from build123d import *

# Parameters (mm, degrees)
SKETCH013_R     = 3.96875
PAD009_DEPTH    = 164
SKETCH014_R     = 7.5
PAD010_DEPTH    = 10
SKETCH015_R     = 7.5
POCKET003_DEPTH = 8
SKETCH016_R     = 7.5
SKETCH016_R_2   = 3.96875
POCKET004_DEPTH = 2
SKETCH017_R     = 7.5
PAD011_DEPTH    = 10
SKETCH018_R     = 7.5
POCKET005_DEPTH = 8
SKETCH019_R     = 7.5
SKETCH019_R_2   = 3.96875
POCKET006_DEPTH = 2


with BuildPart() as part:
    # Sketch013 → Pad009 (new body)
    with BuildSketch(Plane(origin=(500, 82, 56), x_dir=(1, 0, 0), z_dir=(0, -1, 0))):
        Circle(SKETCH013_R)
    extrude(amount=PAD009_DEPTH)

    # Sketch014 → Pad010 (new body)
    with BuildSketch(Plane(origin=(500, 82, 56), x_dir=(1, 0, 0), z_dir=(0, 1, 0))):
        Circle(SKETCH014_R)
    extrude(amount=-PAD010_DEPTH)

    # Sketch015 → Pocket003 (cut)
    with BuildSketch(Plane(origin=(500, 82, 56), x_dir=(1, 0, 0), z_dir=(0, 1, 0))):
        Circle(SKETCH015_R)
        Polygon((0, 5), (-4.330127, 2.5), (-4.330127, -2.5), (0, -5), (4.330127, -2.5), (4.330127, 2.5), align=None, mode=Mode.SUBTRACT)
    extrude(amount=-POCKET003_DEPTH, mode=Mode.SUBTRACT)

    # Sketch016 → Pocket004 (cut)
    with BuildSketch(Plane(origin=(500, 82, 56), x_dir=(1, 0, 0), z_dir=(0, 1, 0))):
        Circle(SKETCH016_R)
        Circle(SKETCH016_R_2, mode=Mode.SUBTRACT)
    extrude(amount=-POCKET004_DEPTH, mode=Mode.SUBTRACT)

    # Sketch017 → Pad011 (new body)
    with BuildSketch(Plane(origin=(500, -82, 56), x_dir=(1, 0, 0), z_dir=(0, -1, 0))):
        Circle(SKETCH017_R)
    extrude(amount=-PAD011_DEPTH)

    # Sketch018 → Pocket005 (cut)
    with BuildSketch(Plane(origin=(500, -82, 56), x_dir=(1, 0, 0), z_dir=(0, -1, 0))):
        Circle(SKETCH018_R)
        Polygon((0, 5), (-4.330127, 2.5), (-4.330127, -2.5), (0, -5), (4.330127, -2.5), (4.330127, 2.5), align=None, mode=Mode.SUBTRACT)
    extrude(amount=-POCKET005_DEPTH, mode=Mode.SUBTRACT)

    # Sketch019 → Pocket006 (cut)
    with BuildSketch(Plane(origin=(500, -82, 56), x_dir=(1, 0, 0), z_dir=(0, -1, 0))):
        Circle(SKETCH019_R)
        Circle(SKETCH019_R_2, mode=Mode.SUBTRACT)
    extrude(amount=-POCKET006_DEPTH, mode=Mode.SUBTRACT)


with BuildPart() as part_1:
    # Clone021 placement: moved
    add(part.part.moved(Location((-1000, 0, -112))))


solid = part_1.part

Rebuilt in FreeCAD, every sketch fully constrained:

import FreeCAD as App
import Part
import Sketcher

V = App.Vector
Q = App.Units.Quantity


def add_polygon(sketch, points):
    """Adds a closed chain of lines whose ends are joined by coincident constraints."""
    first, n = sketch.GeometryCount, len(points)
    for a, b in zip(points, points[1:] + points[:1]):
        sketch.addGeometry(Part.LineSegment(App.Vector(*a, 0), App.Vector(*b, 0)), False)
    for i in range(n):
        sketch.addConstraint(Sketcher.Constraint("Coincident", first + i, 2, first + (i + 1) % n, 1))

doc = App.newDocument("Part")
params = doc.addObject("Spreadsheet::Sheet", "Params")
for row, (alias, value) in enumerate([
    ("pad1_length", "164 mm"),
    ("sketch2_diameter", "15 mm"),
    ("pad2_length", "10 mm"),
    ("sketch3_diameter", "15 mm"),
    ("sketch3_height", "5 mm"),
    ("sketch3_length", "5 mm"),
    ("pocket1_length", "8 mm"),
    ("sketch4_diameter", "15 mm"),
    ("pocket2_length", "2 mm"),
    ("sketch5_diameter", "15 mm"),
    ("pad3_length", "10 mm"),
    ("sketch6_diameter", "15 mm"),
    ("sketch6_height", "5 mm"),
    ("sketch6_length", "5 mm"),
    ("pocket3_length", "8 mm"),
    ("sketch7_diameter", "15 mm"),
    ("pocket4_length", "2 mm"),
], start=1):
    params.set(f"A{row}", alias)
    params.set(f"B{row}", "=" + value)
    params.setAlias(f"B{row}", alias)

body = doc.addObject("PartDesign::Body", "Body")

# Sketch on XZ plane
sketch1 = body.newObject("Sketcher::SketchObject", "Sketch")
sketch1.AttachmentSupport = (doc.getObject("XZ_Plane"), [""])
sketch1.MapMode = "FlatFace"
sketch1.AttachmentOffset = App.Placement(V(0, 0, -82), App.Rotation())
sketch1.addGeometry(Part.Circle(V(500, 56, 0), V(0, 0, 1), 4), False)
sketch1.addConstraint(Sketcher.Constraint("DistanceX", -1, 1, 0, 3, 500.0))
sketch1.addConstraint(Sketcher.Constraint("DistanceY", -1, 1, 0, 3, 56.0))
sketch1.addConstraint(Sketcher.Constraint("Diameter", 0, 7.9375))
pad1 = body.newObject("PartDesign::Pad", "Pad")
pad1.Profile = sketch1
pad1.setExpression("Length", "Params.pad1_length")

# Sketch on XZ plane
sketch2 = body.newObject("Sketcher::SketchObject", "Sketch001")
sketch2.AttachmentSupport = (doc.getObject("XZ_Plane"), [""])
sketch2.MapMode = "FlatFace"
sketch2.AttachmentOffset = App.Placement(V(0, 0, -82), App.Rotation())
sketch2.addGeometry(Part.Circle(V(500, 56, 0), V(0, 0, 1), 8), False)
sketch2.addConstraint(Sketcher.Constraint("Diameter", 0, 15.0))
sketch2.addConstraint(Sketcher.Constraint("DistanceX", -1, 1, 0, 3, 500.0))
sketch2.addConstraint(Sketcher.Constraint("DistanceY", -1, 1, 0, 3, 56.0))
sketch2.setExpression("Constraints[0]", "Params.sketch2_diameter")
pad2 = body.newObject("PartDesign::Pad", "Pad001")
pad2.Profile = sketch2
pad2.setExpression("Length", "Params.pad2_length")

# Sketch on XZ plane
sketch3 = body.newObject("Sketcher::SketchObject", "Sketch002")
sketch3.AttachmentSupport = (doc.getObject("XZ_Plane"), [""])
sketch3.MapMode = "FlatFace"
sketch3.AttachmentOffset = App.Placement(V(0, 0, -82), App.Rotation())
sketch3.addGeometry(Part.Circle(V(500, 56, 0), V(0, 0, 1), 7.5), False)  # 0
add_polygon(sketch3, [(495.7, 53.5), (500, 51), (504.3, 53.5), (504.3, 58.5), (500, 61), (495.7, 58.5)])  # lines 1-6
sketch3.addConstraint(Sketcher.Constraint("Vertical", 3))
sketch3.addConstraint(Sketcher.Constraint("Vertical", 6))
sketch3.addConstraint(Sketcher.Constraint("Parallel", 1, 4))
sketch3.addConstraint(Sketcher.Constraint("Parallel", 2, 5))
sketch3.addConstraint(Sketcher.Constraint("Horizontal", 3, 2, 5, 2))
sketch3.addConstraint(Sketcher.Constraint("Horizontal", 2, 2, 6, 2))
sketch3.addConstraint(Sketcher.Constraint("Vertical", 0, 3, 1, 2))
sketch3.addConstraint(Sketcher.Constraint("Vertical", 1, 2, 4, 2))
sketch3.addConstraint(Sketcher.Constraint("Diameter", 0, 15.0))
sketch3.addConstraint(Sketcher.Constraint("DistanceY", 3, 1, 3, 2, 5.0))
sketch3.addConstraint(Sketcher.Constraint("Angle", 1, Q("-30 deg")))
sketch3.addConstraint(Sketcher.Constraint("Distance", 1, 5.0))
sketch3.addConstraint(Sketcher.Constraint("DistanceX", -1, 1, 0, 3, 500.0))
sketch3.addConstraint(Sketcher.Constraint("DistanceY", -1, 1, 0, 3, 56.0))
sketch3.addConstraint(Sketcher.Constraint("DistanceY", -1, 1, 1, 2, 51.0))
sketch3.setExpression("Constraints[14]", "Params.sketch3_diameter")
sketch3.setExpression("Constraints[15]", "Params.sketch3_height")
sketch3.setExpression("Constraints[17]", "Params.sketch3_length")
pocket1 = body.newObject("PartDesign::Pocket", "Pocket")
pocket1.Profile = sketch3
pocket1.setExpression("Length", "Params.pocket1_length")
pocket1.Reversed = True

# Sketch on XZ plane
sketch4 = body.newObject("Sketcher::SketchObject", "Sketch003")
sketch4.AttachmentSupport = (doc.getObject("XZ_Plane"), [""])
sketch4.MapMode = "FlatFace"
sketch4.AttachmentOffset = App.Placement(V(0, 0, -82), App.Rotation())
sketch4.addGeometry(Part.Circle(V(500, 56, 0), V(0, 0, 1), 7.5), False)
sketch4.addGeometry(Part.Circle(V(500, 56, 0), V(0, 0, 1), 4), False)
sketch4.addConstraint(Sketcher.Constraint("Coincident", 1, 3, 0, 3))
sketch4.addConstraint(Sketcher.Constraint("Diameter", 0, 15.0))
sketch4.addConstraint(Sketcher.Constraint("DistanceX", -1, 1, 0, 3, 500.0))
sketch4.addConstraint(Sketcher.Constraint("DistanceY", -1, 1, 0, 3, 56.0))
sketch4.addConstraint(Sketcher.Constraint("Diameter", 1, 7.9375))
sketch4.setExpression("Constraints[1]", "Params.sketch4_diameter")
pocket2 = body.newObject("PartDesign::Pocket", "Pocket001")
pocket2.Profile = sketch4
pocket2.setExpression("Length", "Params.pocket2_length")
pocket2.Reversed = True

# Sketch on XZ plane
sketch5 = body.newObject("Sketcher::SketchObject", "Sketch004")
sketch5.AttachmentSupport = (doc.getObject("XZ_Plane"), [""])
sketch5.MapMode = "FlatFace"
sketch5.AttachmentOffset = App.Placement(V(0, 0, 82), App.Rotation())
sketch5.addGeometry(Part.Circle(V(500, 56, 0), V(0, 0, 1), 8), False)
sketch5.addConstraint(Sketcher.Constraint("Diameter", 0, 15.0))
sketch5.addConstraint(Sketcher.Constraint("DistanceX", -1, 1, 0, 3, 500.0))
sketch5.addConstraint(Sketcher.Constraint("DistanceY", -1, 1, 0, 3, 56.0))
sketch5.setExpression("Constraints[0]", "Params.sketch5_diameter")
pad3 = body.newObject("PartDesign::Pad", "Pad002")
pad3.Profile = sketch5
pad3.setExpression("Length", "Params.pad3_length")
pad3.Reversed = True

# Sketch on XZ plane
sketch6 = body.newObject("Sketcher::SketchObject", "Sketch005")
sketch6.AttachmentSupport = (doc.getObject("XZ_Plane"), [""])
sketch6.MapMode = "FlatFace"
sketch6.AttachmentOffset = App.Placement(V(0, 0, 82), App.Rotation())
sketch6.addGeometry(Part.Circle(V(500, 56, 0), V(0, 0, 1), 7.5), False)  # 0
add_polygon(sketch6, [(495.7, 58.5), (500, 61), (504.3, 58.5), (504.3, 53.5), (500, 51), (495.7, 53.5)])  # lines 1-6
sketch6.addConstraint(Sketcher.Constraint("Vertical", 3))
sketch6.addConstraint(Sketcher.Constraint("Vertical", 6))
sketch6.addConstraint(Sketcher.Constraint("Parallel", 1, 4))
sketch6.addConstraint(Sketcher.Constraint("Parallel", 2, 5))
sketch6.addConstraint(Sketcher.Constraint("Horizontal", 3, 2, 5, 2))
sketch6.addConstraint(Sketcher.Constraint("Horizontal", 2, 2, 6, 2))
sketch6.addConstraint(Sketcher.Constraint("Vertical", 0, 3, 1, 2))
sketch6.addConstraint(Sketcher.Constraint("Vertical", 1, 2, 4, 2))
sketch6.addConstraint(Sketcher.Constraint("Diameter", 0, 15.0))
sketch6.addConstraint(Sketcher.Constraint("DistanceY", 3, 2, 3, 1, 5.0))
sketch6.addConstraint(Sketcher.Constraint("Angle", 1, Q("30 deg")))
sketch6.addConstraint(Sketcher.Constraint("Distance", 1, 5.0))
sketch6.addConstraint(Sketcher.Constraint("DistanceX", -1, 1, 0, 3, 500.0))
sketch6.addConstraint(Sketcher.Constraint("DistanceY", -1, 1, 0, 3, 56.0))
sketch6.addConstraint(Sketcher.Constraint("DistanceY", -1, 1, 1, 2, 61.0))
sketch6.setExpression("Constraints[14]", "Params.sketch6_diameter")
sketch6.setExpression("Constraints[15]", "Params.sketch6_height")
sketch6.setExpression("Constraints[17]", "Params.sketch6_length")
pocket3 = body.newObject("PartDesign::Pocket", "Pocket002")
pocket3.Profile = sketch6
pocket3.setExpression("Length", "Params.pocket3_length")

# Sketch on XZ plane
sketch7 = body.newObject("Sketcher::SketchObject", "Sketch006")
sketch7.AttachmentSupport = (doc.getObject("XZ_Plane"), [""])
sketch7.MapMode = "FlatFace"
sketch7.AttachmentOffset = App.Placement(V(0, 0, 82), App.Rotation())
sketch7.addGeometry(Part.Circle(V(500, 56, 0), V(0, 0, 1), 7.5), False)
sketch7.addGeometry(Part.Circle(V(500, 56, 0), V(0, 0, 1), 4), False)
sketch7.addConstraint(Sketcher.Constraint("Coincident", 1, 3, 0, 3))
sketch7.addConstraint(Sketcher.Constraint("Diameter", 0, 15.0))
sketch7.addConstraint(Sketcher.Constraint("DistanceX", -1, 1, 0, 3, 500.0))
sketch7.addConstraint(Sketcher.Constraint("DistanceY", -1, 1, 0, 3, 56.0))
sketch7.addConstraint(Sketcher.Constraint("Diameter", 1, 7.9375))
sketch7.setExpression("Constraints[1]", "Params.sketch7_diameter")
pocket4 = body.newObject("PartDesign::Pocket", "Pocket003")
pocket4.Profile = sketch7
pocket4.setExpression("Length", "Params.pocket4_length")
body2 = doc.addObject("PartDesign::Body", "Body001")
doc.recompute()

body.Placement = App.Placement(V(-1000, 0, -112), App.Rotation(V(0, 0, 1), 0))
boolean = body2.newObject("PartDesign::Boolean", "Boolean")
boolean.Type = "Fuse"
boolean.addObjects([body])

doc.recompute()
